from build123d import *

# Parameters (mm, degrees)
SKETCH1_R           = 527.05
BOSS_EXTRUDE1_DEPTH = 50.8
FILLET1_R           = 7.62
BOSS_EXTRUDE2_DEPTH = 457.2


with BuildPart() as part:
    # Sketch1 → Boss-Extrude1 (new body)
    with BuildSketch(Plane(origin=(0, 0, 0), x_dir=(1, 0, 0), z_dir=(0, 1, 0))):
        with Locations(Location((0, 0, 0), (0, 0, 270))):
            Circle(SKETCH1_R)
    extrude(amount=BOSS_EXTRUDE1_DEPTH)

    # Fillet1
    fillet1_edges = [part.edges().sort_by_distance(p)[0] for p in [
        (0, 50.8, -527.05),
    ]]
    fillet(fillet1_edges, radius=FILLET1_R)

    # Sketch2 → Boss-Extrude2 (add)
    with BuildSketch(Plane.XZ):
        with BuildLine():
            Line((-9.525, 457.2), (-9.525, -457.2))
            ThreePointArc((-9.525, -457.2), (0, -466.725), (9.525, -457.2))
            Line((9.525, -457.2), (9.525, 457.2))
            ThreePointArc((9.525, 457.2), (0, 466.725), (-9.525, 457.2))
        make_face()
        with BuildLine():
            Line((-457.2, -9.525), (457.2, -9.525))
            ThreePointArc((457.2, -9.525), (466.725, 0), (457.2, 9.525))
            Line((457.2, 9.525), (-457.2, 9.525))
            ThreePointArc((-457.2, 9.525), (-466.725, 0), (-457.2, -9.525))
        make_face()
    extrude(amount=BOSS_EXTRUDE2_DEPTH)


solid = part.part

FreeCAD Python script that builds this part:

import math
import FreeCAD as App
import Part
import Sketcher

V = App.Vector
Q = App.Units.Quantity


def edges_at(feature, points):
    """Names of the edges that pass closest to the given points."""
    edges = feature.Shape.Edges
    near = lambda p: min(range(len(edges)), key=lambda i: edges[i].distToShape(Part.Vertex(*p))[0])
    return sorted({f"Edge{near(p) + 1}" for p in points})

doc = App.newDocument("Part")
body = doc.addObject("PartDesign::Body", "Body")

sketch1 = body.newObject("Sketcher::SketchObject", "Sketch")
sketch1.AttachmentSupport = (doc.getObject("XZ_Plane"), [""])
sketch1.MapMode = "FlatFace"
sketch1.addGeometry(Part.Circle(V(0, 0, 0), V(0, 0, 1), 527.05), False)
sketch1.addConstraint(Sketcher.Constraint("Coincident", 0, 3, -1, 1))
sketch1.addConstraint(Sketcher.Constraint("Diameter", 0, Q("41.5 in")))
pad1 = body.newObject("PartDesign::Pad", "Pad")
pad1.Profile = sketch1
pad1.Length = Q("2 in")
pad1.Reversed = True
doc.recompute()

fillet = body.newObject("PartDesign::Fillet", "Fillet")
fillet.Base = (pad1, edges_at(pad1, [(0, 50.8, -527.05)]))
fillet.Radius = Q("0.3 in")

sketch2 = body.newObject("Sketcher::SketchObject", "Sketch001")
sketch2.AttachmentSupport = (doc.getObject("XZ_Plane"), [""])
sketch2.MapMode = "FlatFace"
sketch2.addGeometry(Part.ArcOfCircle(Part.Circle(V(0, 457.2, 0), V(0, 0, 1), 9.525), math.radians(0), math.radians(180)), False)
sketch2.addGeometry(Part.LineSegment(V(-9.525, 457.2, 0), V(-9.525, 9.525, 0)), False)
sketch2.addGeometry(Part.LineSegment(V(-9.525, 9.525, 0), V(-457.2, 9.525, 0)), False)
sketch2.addGeometry(Part.ArcOfCircle(Part.Circle(V(-457.2, 0, 0), V(0, 0, 1), 9.525), math.radians(90), math.radians(270)), False)
sketch2.addGeometry(Part.LineSegment(V(-457.2, -9.525, 0), V(-9.525, -9.525, 0)), False)
sketch2.addGeometry(Part.LineSegment(V(-9.525, -9.525, 0), V(-9.525, -457.2, 0)), False)
sketch2.addGeometry(Part.ArcOfCircle(Part.Circle(V(0, -457.2, 0), V(0, 0, 1), 9.525), math.radians(180), math.radians(360)), False)
sketch2.addGeometry(Part.LineSegment(V(9.525, -457.2, 0), V(9.525, -9.525, 0)), False)
sketch2.addGeometry(Part.LineSegment(V(9.525, -9.525, 0), V(457.2, -9.525, 0)), False)
sketch2.addGeometry(Part.ArcOfCircle(Part.Circle(V(457.2, 0, 0), V(0, 0, 1), 9.525), math.radians(-90), math.radians(90)), False)
sketch2.addGeometry(Part.LineSegment(V(457.2, 9.525, 0), V(9.525, 9.525, 0)), False)
sketch2.addGeometry(Part.LineSegment(V(9.525, 9.525, 0), V(9.525, 457.2, 0)), False)
sketch2.addConstraint(Sketcher.Constraint("Tangent", 0, 2, 1, 1))
sketch2.addConstraint(Sketcher.Constraint("Coincident", 1, 2, 2, 1))
sketch2.addConstraint(Sketcher.Constraint("Tangent", 2, 2, 3, 1))
sketch2.addConstraint(Sketcher.Constraint("Tangent", 3, 2, 4, 1))
sketch2.addConstraint(Sketcher.Constraint("Coincident", 4, 2, 5, 1))
sketch2.addConstraint(Sketcher.Constraint("Tangent", 5, 2, 6, 1))
sketch2.addConstraint(Sketcher.Constraint("Tangent", 6, 2, 7, 1))
sketch2.addConstraint(Sketcher.Constraint("Coincident", 7, 2, 8, 1))
sketch2.addConstraint(Sketcher.Constraint("Tangent", 8, 2, 9, 1))
sketch2.addConstraint(Sketcher.Constraint("Tangent", 9, 2, 10, 1))
sketch2.addConstraint(Sketcher.Constraint("Coincident", 10, 2, 11, 1))
sketch2.addConstraint(Sketcher.Constraint("Tangent", 11, 2, 0, 1))
sketch2.addConstraint(Sketcher.Constraint("Vertical", 1))
sketch2.addConstraint(Sketcher.Constraint("Horizontal", 2))
sketch2.addConstraint(Sketcher.Constraint("Horizontal", 4))
sketch2.addConstraint(Sketcher.Constraint("Vertical", 5))
sketch2.addConstraint(Sketcher.Constraint("Vertical", 7))
sketch2.addConstraint(Sketcher.Constraint("Horizontal", 8))
sketch2.addConstraint(Sketcher.Constraint("Horizontal", 10))
sketch2.addConstraint(Sketcher.Constraint("Vertical", 11))
sketch2.addConstraint(Sketcher.Constraint("Equal", 0, 3))
sketch2.addConstraint(Sketcher.Constraint("Equal", 3, 6))
sketch2.addConstraint(Sketcher.Constraint("Equal", 6, 9))
sketch2.addConstraint(Sketcher.Constraint("Symmetric", 0, 3, 6, 3, -1, 1))
sketch2.addConstraint(Sketcher.Constraint("Symmetric", 3, 3, 9, 3, -1, 1))
sketch2.addConstraint(Sketcher.Constraint("Symmetric", 4, 2, 7, 2, -2))
sketch2.addConstraint(Sketcher.Constraint("Equal", 10, 1))
sketch2.addConstraint(Sketcher.Constraint("DistanceY", -1, 1, 0, 3, Q("18 in")))
sketch2.addConstraint(Sketcher.Constraint("Radius", 0, Q("0.375 in")))
pad2 = body.newObject("PartDesign::Pad", "Pad001")
pad2.Profile = sketch2
pad2.Length = Q("18 in")

doc.recompute()
